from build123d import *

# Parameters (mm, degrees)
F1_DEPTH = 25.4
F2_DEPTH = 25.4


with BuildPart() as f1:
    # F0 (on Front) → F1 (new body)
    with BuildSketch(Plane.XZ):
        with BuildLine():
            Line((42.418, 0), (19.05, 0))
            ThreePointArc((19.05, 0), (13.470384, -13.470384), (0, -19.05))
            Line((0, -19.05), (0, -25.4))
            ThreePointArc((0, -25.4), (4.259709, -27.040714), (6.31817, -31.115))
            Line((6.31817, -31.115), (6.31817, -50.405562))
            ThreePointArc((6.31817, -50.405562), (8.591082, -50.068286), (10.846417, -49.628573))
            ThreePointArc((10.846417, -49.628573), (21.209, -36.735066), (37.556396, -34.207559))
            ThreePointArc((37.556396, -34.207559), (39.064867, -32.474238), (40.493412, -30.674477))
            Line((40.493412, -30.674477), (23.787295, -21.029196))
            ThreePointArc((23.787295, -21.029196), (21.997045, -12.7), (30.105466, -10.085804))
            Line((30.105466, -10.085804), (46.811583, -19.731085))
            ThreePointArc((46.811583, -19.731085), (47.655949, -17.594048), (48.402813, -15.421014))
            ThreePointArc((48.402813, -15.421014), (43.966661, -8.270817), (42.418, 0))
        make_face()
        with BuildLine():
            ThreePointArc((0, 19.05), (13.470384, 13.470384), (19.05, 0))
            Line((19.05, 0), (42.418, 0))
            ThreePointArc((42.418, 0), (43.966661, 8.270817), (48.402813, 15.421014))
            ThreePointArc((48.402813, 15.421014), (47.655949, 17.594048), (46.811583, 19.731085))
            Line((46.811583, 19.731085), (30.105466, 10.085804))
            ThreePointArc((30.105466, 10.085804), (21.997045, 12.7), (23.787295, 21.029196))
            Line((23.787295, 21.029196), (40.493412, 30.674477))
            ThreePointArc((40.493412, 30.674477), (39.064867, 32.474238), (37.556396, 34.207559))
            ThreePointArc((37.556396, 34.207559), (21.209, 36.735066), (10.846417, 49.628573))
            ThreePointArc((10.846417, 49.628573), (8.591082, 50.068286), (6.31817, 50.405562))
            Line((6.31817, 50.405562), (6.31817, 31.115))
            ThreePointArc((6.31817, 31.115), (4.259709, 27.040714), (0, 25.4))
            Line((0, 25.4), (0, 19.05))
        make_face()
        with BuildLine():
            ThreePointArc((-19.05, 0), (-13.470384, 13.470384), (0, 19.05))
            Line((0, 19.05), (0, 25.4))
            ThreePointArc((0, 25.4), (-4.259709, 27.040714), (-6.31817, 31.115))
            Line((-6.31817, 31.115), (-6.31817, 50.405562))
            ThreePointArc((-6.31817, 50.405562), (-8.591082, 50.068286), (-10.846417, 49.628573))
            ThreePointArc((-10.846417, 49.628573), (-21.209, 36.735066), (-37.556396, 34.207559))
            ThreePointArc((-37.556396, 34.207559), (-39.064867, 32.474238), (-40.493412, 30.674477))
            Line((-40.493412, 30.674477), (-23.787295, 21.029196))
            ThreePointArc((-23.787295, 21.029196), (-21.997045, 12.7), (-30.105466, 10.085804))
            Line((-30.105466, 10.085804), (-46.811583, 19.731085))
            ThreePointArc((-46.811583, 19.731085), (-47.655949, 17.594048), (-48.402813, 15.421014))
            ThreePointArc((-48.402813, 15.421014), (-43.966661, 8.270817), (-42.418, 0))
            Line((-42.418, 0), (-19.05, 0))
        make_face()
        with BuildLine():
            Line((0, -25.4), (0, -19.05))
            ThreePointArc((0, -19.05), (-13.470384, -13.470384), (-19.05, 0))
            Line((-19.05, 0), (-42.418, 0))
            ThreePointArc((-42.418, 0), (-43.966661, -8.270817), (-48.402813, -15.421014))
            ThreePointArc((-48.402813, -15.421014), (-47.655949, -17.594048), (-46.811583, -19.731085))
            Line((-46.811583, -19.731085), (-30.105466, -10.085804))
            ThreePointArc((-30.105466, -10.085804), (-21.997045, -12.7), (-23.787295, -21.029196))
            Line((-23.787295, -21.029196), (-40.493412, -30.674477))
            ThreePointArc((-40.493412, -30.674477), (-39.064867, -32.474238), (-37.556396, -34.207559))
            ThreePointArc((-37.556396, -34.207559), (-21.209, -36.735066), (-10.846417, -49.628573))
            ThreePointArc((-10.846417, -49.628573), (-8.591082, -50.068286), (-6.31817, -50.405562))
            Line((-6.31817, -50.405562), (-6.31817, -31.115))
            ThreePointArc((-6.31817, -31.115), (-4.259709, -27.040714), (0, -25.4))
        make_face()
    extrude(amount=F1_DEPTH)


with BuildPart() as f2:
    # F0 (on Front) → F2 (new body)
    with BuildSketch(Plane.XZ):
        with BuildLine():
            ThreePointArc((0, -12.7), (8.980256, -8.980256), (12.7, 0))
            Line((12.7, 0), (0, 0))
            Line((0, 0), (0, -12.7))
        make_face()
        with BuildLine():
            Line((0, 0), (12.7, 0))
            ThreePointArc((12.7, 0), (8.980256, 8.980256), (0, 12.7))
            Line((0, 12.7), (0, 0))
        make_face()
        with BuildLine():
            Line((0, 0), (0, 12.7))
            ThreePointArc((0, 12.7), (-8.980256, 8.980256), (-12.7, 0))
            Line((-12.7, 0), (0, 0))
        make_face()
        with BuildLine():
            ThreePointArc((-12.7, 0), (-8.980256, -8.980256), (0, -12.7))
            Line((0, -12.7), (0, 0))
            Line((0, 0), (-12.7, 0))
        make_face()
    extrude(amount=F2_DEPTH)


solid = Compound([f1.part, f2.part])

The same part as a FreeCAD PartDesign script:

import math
import FreeCAD as App
import Part
import Sketcher
Q = App.Units.Quantity

doc = App.newDocument("Part")
body = doc.addObject("PartDesign::Body", "Body")

# Sketch on XZ plane
sketch1 = body.newObject("Sketcher::SketchObject", "Sketch")
sketch1.AttachmentSupport = (doc.getObject("XZ_Plane"), [""])
sketch1.MapMode = "FlatFace"
sketch1.addGeometry([
    Part.ArcOfCircle(Part.Circle(App.Vector(-0.000001, -31.750001, 0), App.Vector(0, 0, 1), 6.350001), math.radians(5.739175), math.radians(89.999993)),  # 0
    Part.LineSegment(App.Vector(6.31817, -31.115, 0), App.Vector(6.31817, -50.405562, 0)),  # 1
    Part.ArcOfCircle(Part.Circle(App.Vector(-0.000047, 0.000317, 0), App.Vector(0, 0, 1), 50.80032), math.radians(-82.855418), math.radians(-77.671772)),  # 2
    Part.ArcOfCircle(Part.Circle(App.Vector(32.639, -56.532407, 0), App.Vector(0, 0, 1), 22.86), math.radians(77.578068), math.radians(162.421934)),  # 3
    Part.ArcOfCircle(Part.Circle(App.Vector(0.000024, -0.000023, 0), App.Vector(0, 0, 1), 50.799966), math.radians(-42.328252), math.radians(-37.14457)),  # 4
    Part.LineSegment(App.Vector(40.493412, -30.674477, 0), App.Vector(23.787295, -21.029196, 0)),  # 5
    Part.ArcOfCircle(Part.Circle(App.Vector(27.496307, -15.875, 0), App.Vector(0, 0, 1), 6.35), math.radians(65.739167), math.radians(234.260827)),  # 6
    Part.LineSegment(App.Vector(30.105466, -10.085804, 0), App.Vector(46.811583, -19.731085, 0)),  # 7
    Part.ArcOfCircle(Part.Circle(App.Vector(0.000012, -0.000009, 0), App.Vector(0, 0, 1), 50.799986), math.radians(-22.855422), math.radians(-17.671742)),  # 8
    Part.ArcOfCircle(Part.Circle(App.Vector(65.278006, 0.000002, 0), App.Vector(0, 0, 1), 22.860006), math.radians(-179.999995), math.radians(-137.578073)),  # 9
    Part.ArcOfCircle(Part.Circle(App.Vector(65.278006, -0.000002, 0), App.Vector(0, 0, 1), 22.860006), math.radians(137.578073), math.radians(179.999995)),  # 10
    Part.ArcOfCircle(Part.Circle(App.Vector(0.000012, 0.000009, 0), App.Vector(0, 0, 1), 50.799986), math.radians(17.671742), math.radians(22.855422)),  # 11
    Part.LineSegment(App.Vector(46.811583, 19.731085, 0), App.Vector(30.105466, 10.085804, 0)),  # 12
    Part.ArcOfCircle(Part.Circle(App.Vector(27.496307, 15.875, 0), App.Vector(0, 0, 1), 6.35), math.radians(125.739173), math.radians(294.260833)),  # 13
    Part.LineSegment(App.Vector(23.787295, 21.029196, 0), App.Vector(40.493412, 30.674477, 0)),  # 14
    Part.ArcOfCircle(Part.Circle(App.Vector(0.000024, 0.000023, 0), App.Vector(0, 0, 1), 50.799966), math.radians(37.14457), math.radians(42.328252)),  # 15
    Part.ArcOfCircle(Part.Circle(App.Vector(32.639, 56.532407, 0), App.Vector(0, 0, 1), 22.86), math.radians(-162.421934), math.radians(-77.578068)),  # 16
    Part.ArcOfCircle(Part.Circle(App.Vector(-0.000047, -0.000317, 0), App.Vector(0, 0, 1), 50.80032), math.radians(77.671772), math.radians(82.855418)),  # 17
    Part.LineSegment(App.Vector(6.31817, 50.405562, 0), App.Vector(6.31817, 31.115, 0)),  # 18
    Part.ArcOfCircle(Part.Circle(App.Vector(-0.000001, 31.750001, 0), App.Vector(0, 0, 1), 6.350001), math.radians(-89.999993), math.radians(-5.739175)),  # 19
    Part.ArcOfCircle(Part.Circle(App.Vector(0.000001, 31.750001, 0), App.Vector(0, 0, 1), 6.350001), math.radians(-174.260825), math.radians(-90.000007)),  # 20
    Part.LineSegment(App.Vector(-6.31817, 31.115, 0), App.Vector(-6.31817, 50.405562, 0)),  # 21
    Part.ArcOfCircle(Part.Circle(App.Vector(0.000047, -0.000317, 0), App.Vector(0, 0, 1), 50.80032), math.radians(97.144582), math.radians(102.328228)),  # 22
    Part.ArcOfCircle(Part.Circle(App.Vector(-32.639, 56.532407, 0), App.Vector(0, 0, 1), 22.86), math.radians(-102.421932), math.radians(-17.578066)),  # 23
    Part.ArcOfCircle(Part.Circle(App.Vector(-0.000024, 0.000023, 0), App.Vector(0, 0, 1), 50.799966), math.radians(137.671748), math.radians(142.85543)),  # 24
    Part.LineSegment(App.Vector(-40.493412, 30.674477, 0), App.Vector(-23.787295, 21.029196, 0)),  # 25
    Part.ArcOfCircle(Part.Circle(App.Vector(-27.496307, 15.875, 0), App.Vector(0, 0, 1), 6.35), math.radians(-114.260833), math.radians(54.260827)),  # 26
    Part.LineSegment(App.Vector(-30.105466, 10.085804, 0), App.Vector(-46.811583, 19.731085, 0)),  # 27
    Part.ArcOfCircle(Part.Circle(App.Vector(-0.000012, 0.000009, 0), App.Vector(0, 0, 1), 50.799986), math.radians(157.144578), math.radians(162.328258)),  # 28
    Part.ArcOfCircle(Part.Circle(App.Vector(-65.278006, -0.000002, 0), App.Vector(0, 0, 1), 22.860006), math.radians(0.000005), math.radians(42.421927)),  # 29
    Part.ArcOfCircle(Part.Circle(App.Vector(-65.278006, 0.000002, 0), App.Vector(0, 0, 1), 22.860006), math.radians(-42.421927), math.radians(-0.000005)),  # 30
    Part.ArcOfCircle(Part.Circle(App.Vector(-0.000012, -0.000009, 0), App.Vector(0, 0, 1), 50.799986), math.radians(-162.328258), math.radians(-157.144578)),  # 31
    Part.LineSegment(App.Vector(-46.811583, -19.731085, 0), App.Vector(-30.105466, -10.085804, 0)),  # 32
    Part.ArcOfCircle(Part.Circle(App.Vector(-27.496307, -15.875, 0), App.Vector(0, 0, 1), 6.35), math.radians(-54.260827), math.radians(114.260833)),  # 33
    Part.LineSegment(App.Vector(-23.787295, -21.029196, 0), App.Vector(-40.493412, -30.674477, 0)),  # 34
    Part.ArcOfCircle(Part.Circle(App.Vector(-0.000024, -0.000023, 0), App.Vector(0, 0, 1), 50.799966), math.radians(-142.85543), math.radians(-137.671748)),  # 35
    Part.ArcOfCircle(Part.Circle(App.Vector(-32.639, -56.532407, 0), App.Vector(0, 0, 1), 22.86), math.radians(17.578066), math.radians(102.421932)),  # 36
    Part.ArcOfCircle(Part.Circle(App.Vector(0.000047, 0.000317, 0), App.Vector(0, 0, 1), 50.80032), math.radians(-102.328228), math.radians(-97.144582)),  # 37
    Part.LineSegment(App.Vector(-6.31817, -50.405562, 0), App.Vector(-6.31817, -31.115, 0)),  # 38
    Part.ArcOfCircle(Part.Circle(App.Vector(0.000001, -31.750001, 0), App.Vector(0, 0, 1), 6.350001), math.radians(90.000007), math.radians(174.260825)),  # 39
    Part.ArcOfCircle(Part.Circle(App.Vector(-0.000001, 0.000001, 0), App.Vector(0, 0, 1), 19.050001), math.radians(-89.999998), math.radians(-0.000002)),  # 40
    Part.ArcOfCircle(Part.Circle(App.Vector(0.000001, 0.000001, 0), App.Vector(0, 0, 1), 19.050001), math.radians(-179.999998), math.radians(-90.000002)),  # 41
    Part.ArcOfCircle(Part.Circle(App.Vector(0.000001, -0.000001, 0), App.Vector(0, 0, 1), 19.050001), math.radians(90.000002), math.radians(179.999998)),  # 42
    Part.ArcOfCircle(Part.Circle(App.Vector(-0.000001, -0.000001, 0), App.Vector(0, 0, 1), 19.050001), math.radians(0.000002), math.radians(89.999998)),  # 43
], False)
sketch1.addConstraint([
    Sketcher.Constraint("Coincident", 0, 1, 1, 1),
    Sketcher.Constraint("Coincident", 1, 2, 2, 1),
    Sketcher.Constraint("Coincident", 2, 2, 3, 2),
    Sketcher.Constraint("Coincident", 3, 1, 4, 1),
    Sketcher.Constraint("Coincident", 4, 2, 5, 1),
    Sketcher.Constraint("Coincident", 5, 2, 6, 2),
    Sketcher.Constraint("Coincident", 6, 1, 7, 1),
    Sketcher.Constraint("Coincident", 7, 2, 8, 1),
    Sketcher.Constraint("Coincident", 8, 2, 9, 2),
    Sketcher.Constraint("Tangent", 9, 1, 10, 2),
    Sketcher.Constraint("Coincident", 10, 1, 11, 1),
    Sketcher.Constraint("Coincident", 11, 2, 12, 1),
    Sketcher.Constraint("Coincident", 12, 2, 13, 2),
    Sketcher.Constraint("Coincident", 13, 1, 14, 1),
    Sketcher.Constraint("Coincident", 14, 2, 15, 1),
    Sketcher.Constraint("Coincident", 15, 2, 16, 2),
    Sketcher.Constraint("Coincident", 16, 1, 17, 1),
    Sketcher.Constraint("Coincident", 17, 2, 18, 1),
    Sketcher.Constraint("Coincident", 18, 2, 19, 2),
    Sketcher.Constraint("Tangent", 19, 1, 20, 2),
    Sketcher.Constraint("Coincident", 20, 1, 21, 1),
    Sketcher.Constraint("Coincident", 21, 2, 22, 1),
    Sketcher.Constraint("Coincident", 22, 2, 23, 2),
    Sketcher.Constraint("Coincident", 23, 1, 24, 1),
    Sketcher.Constraint("Coincident", 24, 2, 25, 1),
    Sketcher.Constraint("Coincident", 25, 2, 26, 2),
    Sketcher.Constraint("Coincident", 26, 1, 27, 1),
    Sketcher.Constraint("Coincident", 27, 2, 28, 1),
    Sketcher.Constraint("Coincident", 28, 2, 29, 2),
    Sketcher.Constraint("Tangent", 29, 1, 30, 2),
    Sketcher.Constraint("Coincident", 30, 1, 31, 1),
    Sketcher.Constraint("Coincident", 31, 2, 32, 1),
    Sketcher.Constraint("Coincident", 32, 2, 33, 2),
    Sketcher.Constraint("Coincident", 33, 1, 34, 1),
    Sketcher.Constraint("Coincident", 34, 2, 35, 1),
    Sketcher.Constraint("Coincident", 35, 2, 36, 2),
    Sketcher.Constraint("Coincident", 36, 1, 37, 1),
    Sketcher.Constraint("Coincident", 37, 2, 38, 1),
    Sketcher.Constraint("Coincident", 38, 2, 39, 2),
    Sketcher.Constraint("Tangent", 39, 1, 0, 2),
    Sketcher.Constraint("Tangent", 40, 1, 41, 2),
    Sketcher.Constraint("Tangent", 41, 1, 42, 2),
    Sketcher.Constraint("Tangent", 42, 1, 43, 2),
    Sketcher.Constraint("Tangent", 43, 1, 40, 2),
    Sketcher.Constraint("Vertical", 1),
    Sketcher.Constraint("Vertical", 18),
    Sketcher.Constraint("Vertical", 21),
    Sketcher.Constraint("Vertical", 38),
    Sketcher.Constraint("Coincident", 40, 3, -1, 1),
    Sketcher.Constraint("Equal", 0, 6),
    Sketcher.Constraint("Equal", 9, 10),
    Sketcher.Constraint("Equal", 8, 11),
    Sketcher.Constraint("Equal", 6, 13),
    Sketcher.Constraint("Equal", 4, 15),
    Sketcher.Constraint("Equal", 3, 16),
    Sketcher.Constraint("Equal", 2, 17),
    Sketcher.Constraint("Equal", 13, 19),
    Sketcher.Constraint("Equal", 19, 20),
    Sketcher.Constraint("Equal", 17, 22),
    Sketcher.Constraint("Equal", 16, 23),
    Sketcher.Constraint("Equal", 15, 24),
    Sketcher.Constraint("Equal", 20, 26),
    Sketcher.Constraint("Equal", 11, 28),
    Sketcher.Constraint("Equal", 10, 29),
    Sketcher.Constraint("Equal", 29, 30),
    Sketcher.Constraint("Equal", 28, 31),
    Sketcher.Constraint("Equal", 26, 33),
    Sketcher.Constraint("Equal", 24, 35),
    Sketcher.Constraint("Equal", 23, 36),
    Sketcher.Constraint("Equal", 22, 37),
    Sketcher.Constraint("Equal", 33, 39),
    Sketcher.Constraint("Equal", 40, 41),
    Sketcher.Constraint("Symmetric", 0, 3, 19, 3, -1, 1),
    Sketcher.Constraint("Symmetric", 2, 3, 22, 3, -1, 1),
    Sketcher.Constraint("Symmetric", 3, 3, 23, 3, -1, 1),
    Sketcher.Constraint("Symmetric", 4, 3, 24, 3, -1, 1),
    Sketcher.Constraint("Symmetric", 6, 3, 26, 3, -1, 1),
    Sketcher.Constraint("Symmetric", 8, 3, 28, 3, -1, 1),
    Sketcher.Constraint("Symmetric", 9, 3, 29, 3, -1, 1),
    Sketcher.Constraint("Symmetric", 11, 3, 31, 3, -1, 1),
    Sketcher.Constraint("Symmetric", 13, 3, 33, 3, -1, 1),
    Sketcher.Constraint("Symmetric", 15, 3, 35, 3, -1, 1),
    Sketcher.Constraint("Symmetric", 16, 3, 36, 3, -1, 1),
    Sketcher.Constraint("Symmetric", 17, 3, 37, 3, -1, 1),
    Sketcher.Constraint("Symmetric", 17, 3, 22, 3, -2),
    Sketcher.Constraint("Symmetric", 16, 3, 23, 3, -2),
    Sketcher.Constraint("Symmetric", 15, 3, 24, 3, -2),
    Sketcher.Constraint("Symmetric", 13, 3, 26, 3, -2),
    Sketcher.Constraint("Symmetric", 11, 3, 28, 3, -2),
    Sketcher.Constraint("Symmetric", 18, 2, 20, 1, -2),
    Sketcher.Constraint("PointOnObject", 9, 1, -1),
    Sketcher.Constraint("PointOnObject", 19, 1, -2),
    Sketcher.Constraint("PointOnObject", 29, 1, -1),
    Sketcher.Constraint("PointOnObject", 39, 1, -2),
    Sketcher.Constraint("PointOnObject", 40, 1, -2),
    Sketcher.Constraint("PointOnObject", 41, 1, -1),
    Sketcher.Constraint("PointOnObject", 42, 1, -2),
    Sketcher.Constraint("PointOnObject", 43, 1, -1),
    Sketcher.Constraint("Parallel", 5, 7),
    Sketcher.Constraint("Parallel", 12, 14),
    Sketcher.Constraint("Parallel", 7, 25),
    Sketcher.Constraint("Parallel", 25, 27),
    Sketcher.Constraint("Parallel", 14, 32),
    Sketcher.Constraint("Parallel", 32, 34),
    Sketcher.Constraint("Horizontal", 10, 3, 29, 3),
    Sketcher.Constraint("Horizontal", 14, 2, 24, 2),
    Sketcher.Constraint("Horizontal", 13, 1, 25, 2),
    Sketcher.Constraint("Horizontal", 12, 2, 26, 1),
    Sketcher.Constraint("Horizontal", 7, 2, 31, 2),
    Sketcher.Constraint("Horizontal", 5, 2, 33, 1),
    Sketcher.Constraint("Horizontal", 1, 2, 37, 2),
    Sketcher.Constraint("Vertical", 6, 1, 12, 2),
    Sketcher.Constraint("Vertical", 5, 2, 13, 1),
    Sketcher.Constraint("Equal", 1, 18),
    Sketcher.Constraint("Equal", 5, 7),
    Sketcher.Constraint("Radius", 3, Q("0.9 in")),
    Sketcher.Constraint("Radius", 0, Q("0.25 in")),
    Sketcher.Constraint("Radius", 40, Q("0.75 in")),
    Sketcher.Constraint("DistanceY", -1, 1, 19, 1, Q("1 in")),
    Sketcher.Constraint("Angle", 5, Q("150 deg")),
    Sketcher.Constraint("DistanceX", -1, 1, 9, 1, Q("1.67 in")),
    Sketcher.Constraint("DistanceX", -1, 1, 3, 3, Q("1.285 in")),
    Sketcher.Constraint("DistanceY", 6, 3, -1, 1, Q("0.625 in")),
    Sketcher.Constraint("DistanceY", 0, 1, -1, 1, Q("1.225 in")),
    Sketcher.Constraint("Radius", 2, 50.80032),
    Sketcher.Constraint("Radius", 4, 50.799966),
    Sketcher.Constraint("Radius", 8, 50.799986),
    Sketcher.Constraint("Radius", 9, 22.860006),
    Sketcher.Constraint("DistanceY", 1, 2, 1, 1, 19.290562),
    Sketcher.Constraint("DistanceY", 3, 1, -1, 1, 34.207559),
    Sketcher.Constraint("DistanceX", -1, 1, 4, 2, 40.493412),
    Sketcher.Constraint("Distance", 5, 19.290562),
    Sketcher.Constraint("DistanceY", -1, 1, 2, 3, 0.000317),
    Sketcher.Constraint("DistanceY", 3, 3, -1, 1, 56.532407),
    Sketcher.Constraint("DistanceX", -1, 1, 6, 3, 27.496307),
    Sketcher.Constraint("DistanceX", -1, 1, 6, 1, 30.105466),
    Sketcher.Constraint("DistanceX", -1, 1, 8, 2, 48.402813),
])
pad1 = body.newObject("PartDesign::Pad", "Pad")
pad1.Profile = sketch1
pad1.Length = Q("1 in")
body2 = doc.addObject("PartDesign::Body", "Body001")

# Sketch on XZ plane
sketch2 = body2.newObject("Sketcher::SketchObject", "Sketch001")
sketch2.AttachmentSupport = (doc.getObject("XZ_Plane001"), [""])
sketch2.MapMode = "FlatFace"
sketch2.addGeometry([
    Part.ArcOfCircle(Part.Circle(App.Vector(0, 0, 0), App.Vector(0, 0, 1), 13), math.radians(-90), math.radians(0)),
    Part.ArcOfCircle(Part.Circle(App.Vector(0, 0, 0), App.Vector(0, 0, 1), 13), math.radians(0), math.radians(90)),
    Part.ArcOfCircle(Part.Circle(App.Vector(0, 0, 0), App.Vector(0, 0, 1), 13), math.radians(90), math.radians(180)),
    Part.ArcOfCircle(Part.Circle(App.Vector(0, 0, 0), App.Vector(0, 0, 1), 13), math.radians(-180), math.radians(-90)),
], False)
sketch2.addConstraint([
    Sketcher.Constraint("Tangent", 0, 2, 1, 1),
    Sketcher.Constraint("Tangent", 1, 2, 2, 1),
    Sketcher.Constraint("Tangent", 2, 2, 3, 1),
    Sketcher.Constraint("Tangent", 3, 2, 0, 1),
    Sketcher.Constraint("Coincident", 0, 3, -1, 1),
    Sketcher.Constraint("Equal", 0, 1),
    Sketcher.Constraint("PointOnObject", 0, 2, -1),
    Sketcher.Constraint("PointOnObject", 1, 2, -2),
    Sketcher.Constraint("PointOnObject", 2, 2, -1),
    Sketcher.Constraint("PointOnObject", 3, 2, -2),
    Sketcher.Constraint("Radius", 0, Q("0.5 in")),
])
pad2 = body2.newObject("PartDesign::Pad", "Pad001")
pad2.Profile = sketch2
pad2.Length = Q("1 in")

doc.recompute()
